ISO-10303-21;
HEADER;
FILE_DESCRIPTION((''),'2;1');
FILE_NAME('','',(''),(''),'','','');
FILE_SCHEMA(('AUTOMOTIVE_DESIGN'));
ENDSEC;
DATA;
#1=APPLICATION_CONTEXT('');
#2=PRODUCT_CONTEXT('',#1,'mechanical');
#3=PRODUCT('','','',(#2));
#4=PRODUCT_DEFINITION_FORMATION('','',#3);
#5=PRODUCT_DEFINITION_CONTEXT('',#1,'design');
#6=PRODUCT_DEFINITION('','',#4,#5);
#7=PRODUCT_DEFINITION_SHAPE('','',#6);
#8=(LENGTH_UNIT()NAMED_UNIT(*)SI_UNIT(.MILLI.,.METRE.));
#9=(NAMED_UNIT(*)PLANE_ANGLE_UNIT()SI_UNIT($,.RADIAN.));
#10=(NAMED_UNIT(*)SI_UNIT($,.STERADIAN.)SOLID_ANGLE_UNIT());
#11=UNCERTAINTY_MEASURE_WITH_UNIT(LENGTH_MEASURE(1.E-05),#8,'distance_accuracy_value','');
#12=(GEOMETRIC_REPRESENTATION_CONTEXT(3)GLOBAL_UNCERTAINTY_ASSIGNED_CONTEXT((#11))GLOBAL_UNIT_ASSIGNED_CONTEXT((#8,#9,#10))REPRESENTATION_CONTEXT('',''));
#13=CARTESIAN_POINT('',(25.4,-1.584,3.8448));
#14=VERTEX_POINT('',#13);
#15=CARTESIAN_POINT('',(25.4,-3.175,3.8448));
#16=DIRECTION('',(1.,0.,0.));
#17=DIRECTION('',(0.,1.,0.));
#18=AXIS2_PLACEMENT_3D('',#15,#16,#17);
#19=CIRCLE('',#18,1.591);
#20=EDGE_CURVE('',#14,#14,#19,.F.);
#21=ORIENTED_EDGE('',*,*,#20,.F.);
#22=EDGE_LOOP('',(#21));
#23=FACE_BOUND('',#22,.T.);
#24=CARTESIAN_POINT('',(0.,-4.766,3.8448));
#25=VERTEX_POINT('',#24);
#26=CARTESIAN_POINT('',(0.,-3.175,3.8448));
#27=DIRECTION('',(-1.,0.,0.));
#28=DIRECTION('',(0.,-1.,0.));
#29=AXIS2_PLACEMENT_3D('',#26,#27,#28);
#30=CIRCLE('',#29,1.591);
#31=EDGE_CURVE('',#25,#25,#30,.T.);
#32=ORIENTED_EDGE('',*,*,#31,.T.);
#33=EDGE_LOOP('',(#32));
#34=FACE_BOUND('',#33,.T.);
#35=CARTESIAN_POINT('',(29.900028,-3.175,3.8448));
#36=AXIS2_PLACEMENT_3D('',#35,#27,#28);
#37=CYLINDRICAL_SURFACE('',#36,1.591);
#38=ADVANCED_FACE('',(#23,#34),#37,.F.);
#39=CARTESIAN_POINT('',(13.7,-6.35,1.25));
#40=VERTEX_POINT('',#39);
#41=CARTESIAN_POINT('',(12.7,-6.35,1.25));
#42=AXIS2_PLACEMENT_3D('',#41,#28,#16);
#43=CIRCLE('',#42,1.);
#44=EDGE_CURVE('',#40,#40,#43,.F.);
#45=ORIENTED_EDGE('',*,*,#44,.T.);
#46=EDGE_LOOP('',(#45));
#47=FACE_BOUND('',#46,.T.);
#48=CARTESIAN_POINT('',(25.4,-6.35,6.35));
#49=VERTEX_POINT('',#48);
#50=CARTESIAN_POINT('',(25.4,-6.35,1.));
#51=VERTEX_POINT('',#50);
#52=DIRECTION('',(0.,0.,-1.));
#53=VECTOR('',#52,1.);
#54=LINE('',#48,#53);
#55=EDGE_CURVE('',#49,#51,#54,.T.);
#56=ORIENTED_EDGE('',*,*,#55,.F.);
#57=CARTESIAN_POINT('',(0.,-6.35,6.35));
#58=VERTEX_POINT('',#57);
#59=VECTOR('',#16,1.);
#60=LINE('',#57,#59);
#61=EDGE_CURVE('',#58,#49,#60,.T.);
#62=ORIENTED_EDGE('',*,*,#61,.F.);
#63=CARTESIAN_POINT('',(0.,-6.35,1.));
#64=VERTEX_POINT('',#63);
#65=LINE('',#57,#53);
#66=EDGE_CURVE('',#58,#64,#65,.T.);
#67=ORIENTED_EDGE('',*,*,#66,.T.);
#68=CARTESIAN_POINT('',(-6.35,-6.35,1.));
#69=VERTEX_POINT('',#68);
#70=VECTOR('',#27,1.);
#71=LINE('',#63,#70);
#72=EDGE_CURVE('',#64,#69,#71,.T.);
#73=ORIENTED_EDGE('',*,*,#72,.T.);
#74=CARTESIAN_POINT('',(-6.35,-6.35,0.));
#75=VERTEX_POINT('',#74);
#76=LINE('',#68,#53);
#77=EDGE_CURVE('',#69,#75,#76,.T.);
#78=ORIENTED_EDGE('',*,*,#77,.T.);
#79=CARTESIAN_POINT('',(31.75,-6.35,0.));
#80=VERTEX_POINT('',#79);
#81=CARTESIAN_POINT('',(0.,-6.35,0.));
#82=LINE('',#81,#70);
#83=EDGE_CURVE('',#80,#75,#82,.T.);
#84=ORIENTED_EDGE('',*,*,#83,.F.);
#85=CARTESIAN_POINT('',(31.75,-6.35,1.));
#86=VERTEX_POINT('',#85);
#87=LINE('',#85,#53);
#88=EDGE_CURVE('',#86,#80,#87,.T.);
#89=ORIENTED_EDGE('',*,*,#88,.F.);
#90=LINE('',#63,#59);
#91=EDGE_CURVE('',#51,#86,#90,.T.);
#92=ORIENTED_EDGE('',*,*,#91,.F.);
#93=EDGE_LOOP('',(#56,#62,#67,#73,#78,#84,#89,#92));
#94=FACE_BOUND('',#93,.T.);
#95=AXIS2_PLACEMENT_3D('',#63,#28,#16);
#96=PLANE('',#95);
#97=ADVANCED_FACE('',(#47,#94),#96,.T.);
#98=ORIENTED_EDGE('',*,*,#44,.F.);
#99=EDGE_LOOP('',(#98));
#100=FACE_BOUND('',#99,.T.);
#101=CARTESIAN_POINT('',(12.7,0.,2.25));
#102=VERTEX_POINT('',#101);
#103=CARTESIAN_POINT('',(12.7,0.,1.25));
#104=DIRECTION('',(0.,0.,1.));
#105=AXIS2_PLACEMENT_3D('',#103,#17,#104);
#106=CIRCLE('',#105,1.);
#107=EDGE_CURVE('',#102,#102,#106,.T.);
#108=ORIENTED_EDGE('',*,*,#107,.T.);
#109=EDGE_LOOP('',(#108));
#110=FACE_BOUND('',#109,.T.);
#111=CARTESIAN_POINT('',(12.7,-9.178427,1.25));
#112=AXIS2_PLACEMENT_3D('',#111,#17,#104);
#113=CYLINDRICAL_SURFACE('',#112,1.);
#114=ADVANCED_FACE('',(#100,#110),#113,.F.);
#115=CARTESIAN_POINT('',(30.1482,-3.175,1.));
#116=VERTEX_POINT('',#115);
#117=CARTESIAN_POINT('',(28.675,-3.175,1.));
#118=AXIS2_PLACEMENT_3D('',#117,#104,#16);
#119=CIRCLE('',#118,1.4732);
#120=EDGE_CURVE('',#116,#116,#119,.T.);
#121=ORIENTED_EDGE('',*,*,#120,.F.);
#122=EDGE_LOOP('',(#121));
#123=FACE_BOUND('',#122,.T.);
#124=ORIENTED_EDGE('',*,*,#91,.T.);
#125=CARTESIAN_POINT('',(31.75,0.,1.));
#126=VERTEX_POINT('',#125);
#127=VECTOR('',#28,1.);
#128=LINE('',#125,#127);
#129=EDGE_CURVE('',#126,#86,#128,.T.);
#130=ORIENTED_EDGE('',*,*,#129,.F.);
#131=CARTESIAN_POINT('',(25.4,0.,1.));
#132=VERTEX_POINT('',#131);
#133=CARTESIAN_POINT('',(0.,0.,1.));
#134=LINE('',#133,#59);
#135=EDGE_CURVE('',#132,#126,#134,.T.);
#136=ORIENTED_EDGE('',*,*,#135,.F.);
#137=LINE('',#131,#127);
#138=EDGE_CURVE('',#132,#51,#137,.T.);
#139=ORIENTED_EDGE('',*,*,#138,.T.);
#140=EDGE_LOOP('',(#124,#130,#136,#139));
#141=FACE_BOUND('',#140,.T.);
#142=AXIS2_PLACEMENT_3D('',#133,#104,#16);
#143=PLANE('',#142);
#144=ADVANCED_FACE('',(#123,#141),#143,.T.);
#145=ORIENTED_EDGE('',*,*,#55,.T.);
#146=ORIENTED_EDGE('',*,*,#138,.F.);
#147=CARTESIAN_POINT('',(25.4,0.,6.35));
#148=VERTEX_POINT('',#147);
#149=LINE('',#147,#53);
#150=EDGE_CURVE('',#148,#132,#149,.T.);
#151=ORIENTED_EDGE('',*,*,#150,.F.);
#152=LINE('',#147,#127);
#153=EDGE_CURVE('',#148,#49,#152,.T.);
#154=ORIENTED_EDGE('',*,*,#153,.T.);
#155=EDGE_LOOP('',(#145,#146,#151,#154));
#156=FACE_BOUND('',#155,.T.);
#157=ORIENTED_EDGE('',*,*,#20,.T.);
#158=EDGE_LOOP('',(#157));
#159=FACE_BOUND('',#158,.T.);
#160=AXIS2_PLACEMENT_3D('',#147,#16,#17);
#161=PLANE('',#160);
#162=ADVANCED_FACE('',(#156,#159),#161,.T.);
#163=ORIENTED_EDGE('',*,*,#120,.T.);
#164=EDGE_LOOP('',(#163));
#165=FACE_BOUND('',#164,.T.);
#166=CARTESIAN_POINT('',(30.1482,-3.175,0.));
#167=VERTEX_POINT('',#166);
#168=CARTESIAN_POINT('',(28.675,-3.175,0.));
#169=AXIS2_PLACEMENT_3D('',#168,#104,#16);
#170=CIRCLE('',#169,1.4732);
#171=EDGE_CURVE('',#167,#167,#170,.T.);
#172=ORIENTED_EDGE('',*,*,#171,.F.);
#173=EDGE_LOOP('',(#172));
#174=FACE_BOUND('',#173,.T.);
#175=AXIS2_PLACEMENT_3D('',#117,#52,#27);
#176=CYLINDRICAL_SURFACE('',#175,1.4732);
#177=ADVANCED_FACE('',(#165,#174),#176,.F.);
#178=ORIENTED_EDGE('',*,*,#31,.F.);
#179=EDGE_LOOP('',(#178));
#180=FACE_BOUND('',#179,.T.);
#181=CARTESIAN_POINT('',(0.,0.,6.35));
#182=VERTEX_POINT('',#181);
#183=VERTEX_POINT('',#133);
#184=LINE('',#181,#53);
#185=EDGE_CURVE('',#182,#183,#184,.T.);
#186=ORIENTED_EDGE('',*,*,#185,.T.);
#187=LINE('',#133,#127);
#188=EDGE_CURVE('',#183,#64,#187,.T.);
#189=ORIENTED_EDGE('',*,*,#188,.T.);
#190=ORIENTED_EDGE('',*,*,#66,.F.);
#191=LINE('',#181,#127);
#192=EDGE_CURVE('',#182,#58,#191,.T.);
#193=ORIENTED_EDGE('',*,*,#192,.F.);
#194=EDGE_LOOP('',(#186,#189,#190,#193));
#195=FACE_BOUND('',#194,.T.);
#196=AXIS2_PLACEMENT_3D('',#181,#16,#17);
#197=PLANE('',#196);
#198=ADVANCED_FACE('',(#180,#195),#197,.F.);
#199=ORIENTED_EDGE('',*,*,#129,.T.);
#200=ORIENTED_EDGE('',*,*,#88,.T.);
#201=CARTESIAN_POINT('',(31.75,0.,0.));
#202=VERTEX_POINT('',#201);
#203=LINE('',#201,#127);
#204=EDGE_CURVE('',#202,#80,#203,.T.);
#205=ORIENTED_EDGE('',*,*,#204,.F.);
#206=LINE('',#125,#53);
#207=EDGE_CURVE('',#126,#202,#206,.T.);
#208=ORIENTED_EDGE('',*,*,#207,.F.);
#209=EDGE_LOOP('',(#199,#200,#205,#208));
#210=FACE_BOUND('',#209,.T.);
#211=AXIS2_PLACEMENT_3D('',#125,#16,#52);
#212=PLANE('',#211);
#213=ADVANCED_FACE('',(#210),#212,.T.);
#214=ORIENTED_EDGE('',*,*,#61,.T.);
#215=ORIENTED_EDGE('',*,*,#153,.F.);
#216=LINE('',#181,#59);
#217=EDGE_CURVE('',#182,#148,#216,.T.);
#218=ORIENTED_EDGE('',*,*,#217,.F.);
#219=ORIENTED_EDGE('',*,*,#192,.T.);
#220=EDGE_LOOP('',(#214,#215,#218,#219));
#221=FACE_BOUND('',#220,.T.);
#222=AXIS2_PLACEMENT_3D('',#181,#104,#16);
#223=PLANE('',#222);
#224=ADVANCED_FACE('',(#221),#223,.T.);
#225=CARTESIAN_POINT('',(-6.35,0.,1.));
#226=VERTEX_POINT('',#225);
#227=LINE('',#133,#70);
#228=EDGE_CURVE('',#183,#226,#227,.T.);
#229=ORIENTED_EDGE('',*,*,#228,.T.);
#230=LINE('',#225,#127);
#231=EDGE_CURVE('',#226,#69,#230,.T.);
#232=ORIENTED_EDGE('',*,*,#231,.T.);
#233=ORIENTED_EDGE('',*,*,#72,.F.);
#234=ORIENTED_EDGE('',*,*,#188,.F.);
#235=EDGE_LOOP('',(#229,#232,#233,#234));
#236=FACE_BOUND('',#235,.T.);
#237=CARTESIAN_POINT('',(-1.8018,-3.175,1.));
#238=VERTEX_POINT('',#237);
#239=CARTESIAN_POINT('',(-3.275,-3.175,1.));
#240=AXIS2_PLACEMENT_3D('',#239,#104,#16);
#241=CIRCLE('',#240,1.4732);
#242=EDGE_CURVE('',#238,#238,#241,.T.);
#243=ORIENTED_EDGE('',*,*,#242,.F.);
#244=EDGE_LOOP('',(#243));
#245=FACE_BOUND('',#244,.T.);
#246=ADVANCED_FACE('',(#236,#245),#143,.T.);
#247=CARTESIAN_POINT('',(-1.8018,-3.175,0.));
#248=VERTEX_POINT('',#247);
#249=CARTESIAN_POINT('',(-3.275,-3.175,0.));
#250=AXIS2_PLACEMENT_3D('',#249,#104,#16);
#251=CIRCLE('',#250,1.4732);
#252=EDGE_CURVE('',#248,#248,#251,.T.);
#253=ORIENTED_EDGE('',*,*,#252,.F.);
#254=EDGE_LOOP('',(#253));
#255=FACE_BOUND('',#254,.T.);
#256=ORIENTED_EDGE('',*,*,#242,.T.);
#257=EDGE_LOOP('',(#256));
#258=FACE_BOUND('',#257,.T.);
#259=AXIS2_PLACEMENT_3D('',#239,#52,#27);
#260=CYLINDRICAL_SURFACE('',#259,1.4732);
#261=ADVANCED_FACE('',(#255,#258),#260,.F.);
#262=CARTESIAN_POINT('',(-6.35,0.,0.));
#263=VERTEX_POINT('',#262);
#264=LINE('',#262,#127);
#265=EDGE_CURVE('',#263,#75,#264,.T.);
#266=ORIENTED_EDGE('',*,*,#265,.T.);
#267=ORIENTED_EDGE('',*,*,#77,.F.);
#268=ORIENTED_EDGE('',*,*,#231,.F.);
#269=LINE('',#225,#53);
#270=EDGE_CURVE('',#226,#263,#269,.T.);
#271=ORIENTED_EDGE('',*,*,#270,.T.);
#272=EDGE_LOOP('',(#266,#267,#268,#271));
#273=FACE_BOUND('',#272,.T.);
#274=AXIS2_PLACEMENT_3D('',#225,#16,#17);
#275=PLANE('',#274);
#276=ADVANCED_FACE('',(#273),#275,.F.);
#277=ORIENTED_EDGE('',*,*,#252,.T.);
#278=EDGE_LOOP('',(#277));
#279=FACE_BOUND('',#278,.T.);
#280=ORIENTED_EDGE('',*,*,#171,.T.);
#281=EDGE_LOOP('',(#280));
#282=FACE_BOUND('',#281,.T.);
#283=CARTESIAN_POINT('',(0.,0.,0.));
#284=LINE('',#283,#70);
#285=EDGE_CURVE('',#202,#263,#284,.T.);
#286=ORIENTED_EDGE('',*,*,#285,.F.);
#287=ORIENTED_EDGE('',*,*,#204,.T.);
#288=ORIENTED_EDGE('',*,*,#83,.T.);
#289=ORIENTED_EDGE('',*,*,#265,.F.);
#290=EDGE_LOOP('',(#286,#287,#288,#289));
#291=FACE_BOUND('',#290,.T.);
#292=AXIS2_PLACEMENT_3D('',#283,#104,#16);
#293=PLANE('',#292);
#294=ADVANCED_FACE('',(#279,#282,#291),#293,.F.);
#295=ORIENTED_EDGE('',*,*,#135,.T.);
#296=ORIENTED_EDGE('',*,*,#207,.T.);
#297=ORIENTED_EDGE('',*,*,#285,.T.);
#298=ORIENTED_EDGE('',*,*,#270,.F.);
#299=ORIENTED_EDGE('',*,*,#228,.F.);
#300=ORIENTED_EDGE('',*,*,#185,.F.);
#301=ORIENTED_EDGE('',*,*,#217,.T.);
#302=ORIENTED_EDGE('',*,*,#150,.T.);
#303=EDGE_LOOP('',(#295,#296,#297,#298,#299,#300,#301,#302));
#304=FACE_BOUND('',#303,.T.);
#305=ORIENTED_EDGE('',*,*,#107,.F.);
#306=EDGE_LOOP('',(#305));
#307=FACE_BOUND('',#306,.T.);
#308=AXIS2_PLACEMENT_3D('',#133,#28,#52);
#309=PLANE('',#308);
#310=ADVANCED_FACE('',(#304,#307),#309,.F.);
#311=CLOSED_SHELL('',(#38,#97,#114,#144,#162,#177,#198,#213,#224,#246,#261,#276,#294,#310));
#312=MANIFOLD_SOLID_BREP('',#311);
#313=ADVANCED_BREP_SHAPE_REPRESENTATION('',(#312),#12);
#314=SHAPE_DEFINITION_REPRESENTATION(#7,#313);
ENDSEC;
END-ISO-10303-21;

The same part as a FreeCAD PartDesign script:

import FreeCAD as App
import Part
import Sketcher
Q = App.Units.Quantity


def add_polygon(sketch, points):
    """Adds a closed chain of lines whose ends are joined by coincident constraints."""
    first, n = sketch.GeometryCount, len(points)
    for a, b in zip(points, points[1:] + points[:1]):
        sketch.addGeometry(Part.LineSegment(App.Vector(*a, 0), App.Vector(*b, 0)), False)
    for i in range(n):
        sketch.addConstraint(Sketcher.Constraint("Coincident", first + i, 2, first + (i + 1) % n, 1))

doc = App.newDocument("Part")
body = doc.addObject("PartDesign::Body", "Body")

# Sketch on XY plane
sketch1 = body.newObject("Sketcher::SketchObject", "Sketch")
sketch1.AttachmentSupport = (doc.getObject("XY_Plane"), [""])
sketch1.MapMode = "FlatFace"
add_polygon(sketch1, [(-6.3, 0), (-6.3, -6.3), (0, -6.3), (0, 0)])  # lines 0-3
sketch1.addGeometry(Part.Circle(App.Vector(-3.3, -3.2, 0), App.Vector(0, 0, 1), 1.5), False)  # 4
sketch1.addConstraint([
    Sketcher.Constraint("Vertical", 0),
    Sketcher.Constraint("Horizontal", 1),
    Sketcher.Constraint("Vertical", 2),
    Sketcher.Constraint("Horizontal", 3),
    Sketcher.Constraint("Coincident", 2, 2, -1, 1),
    Sketcher.Constraint("Equal", 3, 0),
    Sketcher.Constraint("Diameter", 4, Q("0.116 in")),
    Sketcher.Constraint("DistanceX", 1, 1, 1, 2, Q("0.25 in")),
    Sketcher.Constraint("DistanceY", 4, 3, -1, 1, Q("0.125 in")),
    Sketcher.Constraint("DistanceX", 4, 3, -1, 1, 3.275),
])
pad1 = body.newObject("PartDesign::Pad", "Pad")
pad1.Profile = sketch1
pad1.Length = 1
body2 = doc.addObject("PartDesign::Body", "Body001")

# Sketch on XY plane
sketch2 = body2.newObject("Sketcher::SketchObject", "Sketch001")
sketch2.AttachmentSupport = (doc.getObject("XY_Plane001"), [""])
sketch2.MapMode = "FlatFace"
add_polygon(sketch2, [(25.4, 0), (25.4, -6.3), (31.8, -6.3), (31.8, 0)])  # lines 0-3
sketch2.addGeometry(Part.Circle(App.Vector(28.7, -3.2, 0), App.Vector(0, 0, 1), 1.5), False)  # 4
sketch2.addConstraint([
    Sketcher.Constraint("Vertical", 0),
    Sketcher.Constraint("Horizontal", 1),
    Sketcher.Constraint("Vertical", 2),
    Sketcher.Constraint("Horizontal", 3),
    Sketcher.Constraint("PointOnObject", 2, 2, -1),
    Sketcher.Constraint("Equal", 3, 0),
    Sketcher.Constraint("Diameter", 4, Q("0.116 in")),
    Sketcher.Constraint("DistanceX", -1, 1, 0, 2, Q("1 in")),
    Sketcher.Constraint("DistanceX", 1, 1, 1, 2, Q("0.25 in")),
    Sketcher.Constraint("DistanceY", 4, 3, -1, 1, Q("0.125 in")),
    Sketcher.Constraint("DistanceX", -1, 1, 4, 3, 28.675),
])
pad2 = body2.newObject("PartDesign::Pad", "Pad001")
pad2.Profile = sketch2
pad2.Length = 1
body.AllowCompound = True
doc.recompute()

boolean = body.newObject("PartDesign::Boolean", "Boolean")
boolean.Type = "Fuse"
boolean.addObjects([body2])

# Sketch on XY plane
sketch3 = body.newObject("Sketcher::SketchObject", "Sketch002")
sketch3.AttachmentSupport = (doc.getObject("XY_Plane"), [""])
sketch3.MapMode = "FlatFace"
add_polygon(sketch3, [(0, 0), (0, -6), (25, -6), (25, 0)])  # lines 0-3
sketch3.addConstraint([
    Sketcher.Constraint("Vertical", 0),
    Sketcher.Constraint("Horizontal", 1),
    Sketcher.Constraint("Vertical", 2),
    Sketcher.Constraint("Horizontal", 3),
    Sketcher.Constraint("Coincident", 3, 2, -1, 1),
    Sketcher.Constraint("DistanceX", 1, 1, 1, 2, Q("1 in")),
    Sketcher.Constraint("DistanceY", 0, 2, 0, 1, Q("0.25 in")),
])
pad3 = body.newObject("PartDesign::Pad", "Pad002")
pad3.Profile = sketch3
pad3.Length = Q("0.25 in")

# Sketch on YZ plane
sketch4 = body.newObject("Sketcher::SketchObject", "Sketch003")
sketch4.AttachmentSupport = (doc.getObject("YZ_Plane"), [""])
sketch4.MapMode = "FlatFace"
sketch4.addGeometry(Part.Circle(App.Vector(-3.2, 3.8, 0), App.Vector(0, 0, 1), 1.6), False)
sketch4.addConstraint([
    Sketcher.Constraint("Diameter", 0, 3.182),
    Sketcher.Constraint("DistanceX", 0, 3, -1, 1, Q("0.125 in")),
    Sketcher.Constraint("DistanceY", -1, 1, 0, 3, 3.8448),
])
pocket1 = body.newObject("PartDesign::Pocket", "Pocket")
pocket1.Profile = sketch4
pocket1.Length = Q("1 in")
pocket1.Reversed = True

# Sketch on XZ plane
sketch5 = body.newObject("Sketcher::SketchObject", "Sketch004")
sketch5.AttachmentSupport = (doc.getObject("XZ_Plane"), [""])
sketch5.MapMode = "FlatFace"
sketch5.addGeometry(Part.Circle(App.Vector(12.7, 1.2, 0), App.Vector(0, 0, 1), 1), False)
sketch5.addConstraint([
    Sketcher.Constraint("DistanceX", -1, 1, 0, 3, Q("0.5 in")),
    Sketcher.Constraint("Diameter", 0, 2.0),
    Sketcher.Constraint("DistanceY", -1, 1, 0, 3, 1.25),
])
pocket2 = body.newObject("PartDesign::Pocket", "Pocket001")
pocket2.Profile = sketch5
pocket2.Length = Q("0.25 in")
pocket2.Reversed = True

doc.recompute()
